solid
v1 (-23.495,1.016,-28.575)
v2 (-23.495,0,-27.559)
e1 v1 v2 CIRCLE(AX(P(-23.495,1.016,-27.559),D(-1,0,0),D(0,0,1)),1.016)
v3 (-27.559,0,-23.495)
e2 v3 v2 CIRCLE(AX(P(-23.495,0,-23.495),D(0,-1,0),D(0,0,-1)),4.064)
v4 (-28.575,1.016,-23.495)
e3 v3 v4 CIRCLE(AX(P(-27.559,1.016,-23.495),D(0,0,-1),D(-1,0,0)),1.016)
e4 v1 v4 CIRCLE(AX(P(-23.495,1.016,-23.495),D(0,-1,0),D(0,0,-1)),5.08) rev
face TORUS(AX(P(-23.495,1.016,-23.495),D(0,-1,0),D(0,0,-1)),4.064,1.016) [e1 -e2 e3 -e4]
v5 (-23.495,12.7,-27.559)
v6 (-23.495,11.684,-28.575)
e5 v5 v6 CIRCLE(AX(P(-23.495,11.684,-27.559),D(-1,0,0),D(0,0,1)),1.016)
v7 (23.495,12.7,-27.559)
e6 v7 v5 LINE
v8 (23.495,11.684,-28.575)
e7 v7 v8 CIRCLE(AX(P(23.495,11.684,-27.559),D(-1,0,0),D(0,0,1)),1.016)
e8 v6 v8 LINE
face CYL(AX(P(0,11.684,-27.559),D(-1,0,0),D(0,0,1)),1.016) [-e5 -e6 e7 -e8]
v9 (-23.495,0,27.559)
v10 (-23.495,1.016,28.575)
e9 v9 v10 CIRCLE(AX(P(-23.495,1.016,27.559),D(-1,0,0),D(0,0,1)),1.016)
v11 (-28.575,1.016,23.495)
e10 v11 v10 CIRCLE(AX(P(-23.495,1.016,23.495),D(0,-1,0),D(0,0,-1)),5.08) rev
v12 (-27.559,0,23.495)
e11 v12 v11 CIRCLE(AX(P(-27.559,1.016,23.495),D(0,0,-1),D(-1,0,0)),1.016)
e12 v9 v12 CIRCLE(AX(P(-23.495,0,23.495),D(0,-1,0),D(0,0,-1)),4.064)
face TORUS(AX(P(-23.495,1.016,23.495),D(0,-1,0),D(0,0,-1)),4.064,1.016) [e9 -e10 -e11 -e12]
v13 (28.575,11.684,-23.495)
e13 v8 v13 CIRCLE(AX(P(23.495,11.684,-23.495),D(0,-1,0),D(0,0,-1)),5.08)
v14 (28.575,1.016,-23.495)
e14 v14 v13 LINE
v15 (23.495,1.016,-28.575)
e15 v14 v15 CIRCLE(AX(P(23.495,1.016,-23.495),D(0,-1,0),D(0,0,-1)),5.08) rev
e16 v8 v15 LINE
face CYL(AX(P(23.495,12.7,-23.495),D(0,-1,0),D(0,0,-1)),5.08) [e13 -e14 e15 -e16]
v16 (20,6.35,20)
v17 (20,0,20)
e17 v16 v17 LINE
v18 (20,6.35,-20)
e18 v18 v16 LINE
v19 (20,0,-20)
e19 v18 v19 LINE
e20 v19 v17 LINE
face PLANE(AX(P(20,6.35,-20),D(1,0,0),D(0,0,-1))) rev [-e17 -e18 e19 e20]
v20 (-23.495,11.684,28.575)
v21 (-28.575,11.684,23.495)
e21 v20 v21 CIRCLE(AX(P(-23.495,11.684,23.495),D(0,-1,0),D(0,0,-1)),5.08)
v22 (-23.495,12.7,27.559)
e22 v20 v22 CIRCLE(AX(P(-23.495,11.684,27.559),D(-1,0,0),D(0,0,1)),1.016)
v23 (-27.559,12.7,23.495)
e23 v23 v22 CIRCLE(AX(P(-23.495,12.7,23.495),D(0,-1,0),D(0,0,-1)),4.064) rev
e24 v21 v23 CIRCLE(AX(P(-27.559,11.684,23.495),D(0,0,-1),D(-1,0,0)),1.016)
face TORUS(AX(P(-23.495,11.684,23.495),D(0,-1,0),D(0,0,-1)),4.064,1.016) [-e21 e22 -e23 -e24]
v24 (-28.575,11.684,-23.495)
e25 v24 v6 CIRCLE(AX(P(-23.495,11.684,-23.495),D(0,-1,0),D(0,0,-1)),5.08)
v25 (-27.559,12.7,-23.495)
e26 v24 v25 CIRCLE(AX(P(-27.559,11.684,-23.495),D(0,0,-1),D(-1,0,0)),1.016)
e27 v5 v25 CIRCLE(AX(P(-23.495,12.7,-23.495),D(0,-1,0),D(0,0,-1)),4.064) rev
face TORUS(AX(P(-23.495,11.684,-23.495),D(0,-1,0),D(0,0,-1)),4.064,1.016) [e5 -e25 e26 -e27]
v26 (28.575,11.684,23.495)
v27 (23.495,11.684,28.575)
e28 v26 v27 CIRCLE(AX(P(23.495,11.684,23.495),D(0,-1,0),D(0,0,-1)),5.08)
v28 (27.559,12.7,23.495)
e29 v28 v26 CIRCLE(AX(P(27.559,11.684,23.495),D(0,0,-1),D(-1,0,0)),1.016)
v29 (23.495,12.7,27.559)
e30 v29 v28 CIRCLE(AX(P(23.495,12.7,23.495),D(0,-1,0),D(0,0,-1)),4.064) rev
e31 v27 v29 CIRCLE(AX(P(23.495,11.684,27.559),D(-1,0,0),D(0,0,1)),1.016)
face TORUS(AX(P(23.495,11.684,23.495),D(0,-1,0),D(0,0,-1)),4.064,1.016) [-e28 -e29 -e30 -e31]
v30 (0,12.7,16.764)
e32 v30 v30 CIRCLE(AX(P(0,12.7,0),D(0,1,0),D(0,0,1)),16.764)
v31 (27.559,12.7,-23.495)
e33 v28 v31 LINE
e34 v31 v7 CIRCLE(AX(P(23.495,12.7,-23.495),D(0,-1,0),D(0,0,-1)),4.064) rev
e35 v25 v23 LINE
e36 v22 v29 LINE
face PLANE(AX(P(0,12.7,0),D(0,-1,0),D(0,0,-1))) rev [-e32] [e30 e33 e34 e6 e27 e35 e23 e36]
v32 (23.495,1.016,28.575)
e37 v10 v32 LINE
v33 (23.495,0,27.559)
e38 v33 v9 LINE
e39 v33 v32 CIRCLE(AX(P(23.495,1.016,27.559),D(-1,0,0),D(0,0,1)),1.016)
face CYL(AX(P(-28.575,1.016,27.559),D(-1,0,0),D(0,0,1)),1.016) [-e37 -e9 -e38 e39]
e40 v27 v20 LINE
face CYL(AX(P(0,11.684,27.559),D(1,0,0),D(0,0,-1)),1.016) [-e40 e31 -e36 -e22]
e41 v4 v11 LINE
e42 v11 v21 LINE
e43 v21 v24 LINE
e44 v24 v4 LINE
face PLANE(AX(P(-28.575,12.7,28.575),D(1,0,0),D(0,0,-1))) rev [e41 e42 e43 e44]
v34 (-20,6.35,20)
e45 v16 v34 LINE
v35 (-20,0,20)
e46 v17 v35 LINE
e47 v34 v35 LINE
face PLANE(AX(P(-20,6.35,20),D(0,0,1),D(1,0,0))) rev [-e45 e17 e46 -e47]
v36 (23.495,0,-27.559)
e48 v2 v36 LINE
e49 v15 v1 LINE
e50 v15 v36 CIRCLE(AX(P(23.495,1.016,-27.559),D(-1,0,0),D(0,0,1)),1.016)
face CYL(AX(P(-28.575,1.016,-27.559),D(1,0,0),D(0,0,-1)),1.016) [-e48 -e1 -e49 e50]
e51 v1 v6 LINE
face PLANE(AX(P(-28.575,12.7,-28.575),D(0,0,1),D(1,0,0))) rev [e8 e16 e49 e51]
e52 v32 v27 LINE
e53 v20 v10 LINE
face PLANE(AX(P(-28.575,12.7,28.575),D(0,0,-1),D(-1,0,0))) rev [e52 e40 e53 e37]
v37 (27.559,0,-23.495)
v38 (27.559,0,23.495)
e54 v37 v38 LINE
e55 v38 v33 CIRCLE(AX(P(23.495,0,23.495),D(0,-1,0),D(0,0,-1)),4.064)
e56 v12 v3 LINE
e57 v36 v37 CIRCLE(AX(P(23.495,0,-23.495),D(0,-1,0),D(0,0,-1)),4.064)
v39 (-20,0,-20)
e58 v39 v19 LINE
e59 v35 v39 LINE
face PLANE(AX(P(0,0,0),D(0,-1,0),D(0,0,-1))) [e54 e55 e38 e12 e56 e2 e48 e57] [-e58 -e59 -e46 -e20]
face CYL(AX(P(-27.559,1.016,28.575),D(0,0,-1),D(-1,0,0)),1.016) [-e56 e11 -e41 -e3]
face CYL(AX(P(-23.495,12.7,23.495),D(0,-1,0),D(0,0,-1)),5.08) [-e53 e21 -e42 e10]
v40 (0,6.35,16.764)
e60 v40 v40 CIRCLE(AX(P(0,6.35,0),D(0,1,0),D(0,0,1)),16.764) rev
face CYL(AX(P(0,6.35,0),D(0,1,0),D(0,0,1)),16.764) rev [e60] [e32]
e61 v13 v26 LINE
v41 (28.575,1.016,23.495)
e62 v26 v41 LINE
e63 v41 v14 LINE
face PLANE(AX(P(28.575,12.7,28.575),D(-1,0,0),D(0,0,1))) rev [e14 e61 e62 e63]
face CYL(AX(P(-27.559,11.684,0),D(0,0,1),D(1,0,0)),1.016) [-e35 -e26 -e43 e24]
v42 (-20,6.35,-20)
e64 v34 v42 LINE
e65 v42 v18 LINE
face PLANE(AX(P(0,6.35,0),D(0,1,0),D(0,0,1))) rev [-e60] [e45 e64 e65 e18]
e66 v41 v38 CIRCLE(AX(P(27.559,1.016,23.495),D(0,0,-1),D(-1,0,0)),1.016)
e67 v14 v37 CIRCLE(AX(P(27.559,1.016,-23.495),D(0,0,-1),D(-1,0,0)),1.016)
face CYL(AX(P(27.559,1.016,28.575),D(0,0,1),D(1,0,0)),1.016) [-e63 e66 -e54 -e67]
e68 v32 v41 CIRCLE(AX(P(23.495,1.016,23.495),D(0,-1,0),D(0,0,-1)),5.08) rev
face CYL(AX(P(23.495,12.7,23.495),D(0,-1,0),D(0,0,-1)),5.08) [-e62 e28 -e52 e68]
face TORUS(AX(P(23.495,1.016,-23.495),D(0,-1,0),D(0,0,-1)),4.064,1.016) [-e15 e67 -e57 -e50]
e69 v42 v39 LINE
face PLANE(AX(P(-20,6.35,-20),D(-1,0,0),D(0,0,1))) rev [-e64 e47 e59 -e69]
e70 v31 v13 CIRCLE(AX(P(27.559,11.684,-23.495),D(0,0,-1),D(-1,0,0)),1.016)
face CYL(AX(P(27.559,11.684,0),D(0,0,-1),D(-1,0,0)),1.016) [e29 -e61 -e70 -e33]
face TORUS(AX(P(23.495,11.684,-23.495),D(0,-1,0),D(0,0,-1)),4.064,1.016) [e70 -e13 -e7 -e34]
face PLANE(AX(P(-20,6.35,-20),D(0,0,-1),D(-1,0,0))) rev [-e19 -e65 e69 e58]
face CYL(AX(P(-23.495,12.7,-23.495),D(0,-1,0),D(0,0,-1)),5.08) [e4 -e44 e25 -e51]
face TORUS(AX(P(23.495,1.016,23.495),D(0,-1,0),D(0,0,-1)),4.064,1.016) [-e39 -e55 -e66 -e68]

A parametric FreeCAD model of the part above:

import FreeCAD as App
import Part
import Sketcher
Q = App.Units.Quantity


def edges_at(feature, points):
    """Names of the edges that pass closest to the given points."""
    edges = feature.Shape.Edges
    near = lambda p: min(range(len(edges)), key=lambda i: edges[i].distToShape(Part.Vertex(*p))[0])
    return sorted({f"Edge{near(p) + 1}" for p in points})


def add_polygon(sketch, points):
    """Adds a closed chain of lines whose ends are joined by coincident constraints."""
    first, n = sketch.GeometryCount, len(points)
    for a, b in zip(points, points[1:] + points[:1]):
        sketch.addGeometry(Part.LineSegment(App.Vector(*a, 0), App.Vector(*b, 0)), False)
    for i in range(n):
        sketch.addConstraint(Sketcher.Constraint("Coincident", first + i, 2, first + (i + 1) % n, 1))

doc = App.newDocument("Part")
body = doc.addObject("PartDesign::Body", "Body")

# Sketch on XZ plane
sketch1 = body.newObject("Sketcher::SketchObject", "Sketch")
sketch1.AttachmentSupport = (doc.getObject("XZ_Plane"), [""])
sketch1.MapMode = "FlatFace"
add_polygon(sketch1, [(-29, -29), (-29, 29), (29, 29), (29, -29)])  # lines 0-3
sketch1.addConstraint([
    Sketcher.Constraint("Vertical", 0),
    Sketcher.Constraint("Horizontal", 1),
    Sketcher.Constraint("Vertical", 2),
    Sketcher.Constraint("Horizontal", 3),
    Sketcher.Constraint("Symmetric", 0, 2, 2, 2, -1, 1),
    Sketcher.Constraint("Equal", 3, 0),
    Sketcher.Constraint("DistanceX", 1, 1, 1, 2, Q("2.25 in")),
])
pad1 = body.newObject("PartDesign::Pad", "Pad")
pad1.Profile = sketch1
pad1.Length = Q("0.5 in")
pad1.Reversed = True
doc.recompute()

fillet = body.newObject("PartDesign::Fillet", "Fillet")
fillet.Base = (pad1, edges_at(pad1, [
    (28.575, 6.35, 28.575),
    (-28.575, 6.35, 28.575),
    (-28.575, 6.35, -28.575),
    (28.575, 6.35, -28.575),
]))
fillet.Radius = Q("0.2 in")
doc.recompute()

fillet2 = body.newObject("PartDesign::Fillet", "Fillet001")
fillet2.Base = (fillet, edges_at(fillet, [
    (0, 0, 28.575),
    (0, 12.7, 28.575),
    (28.575, 0, 0),
    (-28.575, 0, 0),
    (0, 0, -28.575),
    (-27.087, 0, -27.087),
    (27.087, 0, -27.087),
    (27.087, 0, 27.087),
    (-27.087, 0, 27.087),
    (-28.575, 12.7, 0),
    (28.575, 12.7, 0),
    (0, 12.7, -28.575),
    (-27.087, 12.7, -27.087),
    (27.087, 12.7, -27.087),
    (27.087, 12.7, 27.087),
    (-27.087, 12.7, 27.087),
]))
fillet2.Radius = Q("0.04 in")

# Sketch on XZ plane
sketch2 = body.newObject("Sketcher::SketchObject", "Sketch001")
sketch2.AttachmentSupport = (doc.getObject("XZ_Plane"), [""])
sketch2.MapMode = "FlatFace"
sketch2.AttachmentOffset = App.Placement(App.Vector(0, 0, -0.5 * 25.4), App.Rotation())
sketch2.addGeometry(Part.Circle(App.Vector(0, 0, 0), App.Vector(0, 0, 1), 17), False)
sketch2.addConstraint([
    Sketcher.Constraint("Coincident", 0, 3, -1, 1),
    Sketcher.Constraint("Diameter", 0, Q("1.32 in")),
])
pocket1 = body.newObject("PartDesign::Pocket", "Pocket")
pocket1.Profile = sketch2
pocket1.Length = Q("0.25 in")
pocket1.Reversed = True

# Sketch on XZ plane
sketch3 = body.newObject("Sketcher::SketchObject", "Sketch002")
sketch3.AttachmentSupport = (doc.getObject("XZ_Plane"), [""])
sketch3.MapMode = "FlatFace"
add_polygon(sketch3, [(-20, 20), (-20, -20), (20, -20), (20, 20)])  # lines 0-3
sketch3.addConstraint([
    Sketcher.Constraint("Vertical", 0),
    Sketcher.Constraint("Horizontal", 1),
    Sketcher.Constraint("Vertical", 2),
    Sketcher.Constraint("Horizontal", 3),
    Sketcher.Constraint("Symmetric", 0, 2, 2, 2, -1, 1),
    Sketcher.Constraint("Equal", 3, 0),
    Sketcher.Constraint("DistanceX", 1, 1, 1, 2, Q("40 mm")),
])
pocket2 = body.newObject("PartDesign::Pocket", "Pocket001")
pocket2.Profile = sketch3
pocket2.Length = Q("0.25 in")

doc.recompute()
